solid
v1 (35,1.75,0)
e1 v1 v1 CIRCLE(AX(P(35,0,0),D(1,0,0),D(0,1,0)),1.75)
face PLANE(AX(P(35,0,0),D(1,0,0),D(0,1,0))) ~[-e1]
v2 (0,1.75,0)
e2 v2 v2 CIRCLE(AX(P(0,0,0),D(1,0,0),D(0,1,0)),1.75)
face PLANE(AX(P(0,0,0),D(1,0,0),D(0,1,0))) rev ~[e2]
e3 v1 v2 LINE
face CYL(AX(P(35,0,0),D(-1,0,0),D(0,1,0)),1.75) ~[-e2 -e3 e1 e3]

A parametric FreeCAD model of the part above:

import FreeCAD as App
import Part
import Sketcher

doc = App.newDocument("Part")
params = doc.addObject("Spreadsheet::Sheet", "Params")
for row, (alias, value) in enumerate([
    ("sketch1_width", "35 mm"),
    ("sketch1_height", "1.75 mm"),
    ("revolution_angle", "360 deg"),
], start=1):
    params.set(f"A{row}", alias)
    params.set(f"B{row}", "=" + value)
    params.setAlias(f"B{row}", alias)

body = doc.addObject("PartDesign::Body", "Body")

# Sketch on XY plane
sketch1 = body.newObject("Sketcher::SketchObject", "Sketch")
sketch1.AttachmentSupport = (doc.getObject("XY_Plane"), [""])
sketch1.MapMode = "FlatFace"
sketch1.addGeometry(Part.LineSegment(App.Vector(0, 1.75, 0), App.Vector(0, 0, 0)), False)
sketch1.addGeometry(Part.LineSegment(App.Vector(0, 0, 0), App.Vector(35, 0, 0)), False)
sketch1.addGeometry(Part.LineSegment(App.Vector(35, 0, 0), App.Vector(35, 1.75, 0)), False)
sketch1.addGeometry(Part.LineSegment(App.Vector(35, 1.75, 0), App.Vector(0, 1.75, 0)), False)
sketch1.addConstraint(Sketcher.Constraint("Coincident", 0, 2, 1, 1))
sketch1.addConstraint(Sketcher.Constraint("Coincident", 1, 2, 2, 1))
sketch1.addConstraint(Sketcher.Constraint("Coincident", 2, 2, 3, 1))
sketch1.addConstraint(Sketcher.Constraint("Coincident", 3, 2, 0, 1))
sketch1.addConstraint(Sketcher.Constraint("Vertical", 0))
sketch1.addConstraint(Sketcher.Constraint("Horizontal", 1))
sketch1.addConstraint(Sketcher.Constraint("Vertical", 2))
sketch1.addConstraint(Sketcher.Constraint("Horizontal", 3))
sketch1.addConstraint(Sketcher.Constraint("Coincident", 0, 2, -1, 1))
sketch1.addConstraint(Sketcher.Constraint("DistanceX", 1, 1, 1, 2, 35.0))
sketch1.addConstraint(Sketcher.Constraint("DistanceY", 0, 2, 0, 1, 1.75))
sketch1.setExpression("Constraints[9]", "Params.sketch1_width")
sketch1.setExpression("Constraints[10]", "Params.sketch1_height")
revolution = body.newObject("PartDesign::Revolution", "Revolution")
revolution.Profile = sketch1
revolution.ReferenceAxis = (sketch1, ["H_Axis"])
revolution.setExpression("Angle", "Params.revolution_angle")

doc.recompute()
